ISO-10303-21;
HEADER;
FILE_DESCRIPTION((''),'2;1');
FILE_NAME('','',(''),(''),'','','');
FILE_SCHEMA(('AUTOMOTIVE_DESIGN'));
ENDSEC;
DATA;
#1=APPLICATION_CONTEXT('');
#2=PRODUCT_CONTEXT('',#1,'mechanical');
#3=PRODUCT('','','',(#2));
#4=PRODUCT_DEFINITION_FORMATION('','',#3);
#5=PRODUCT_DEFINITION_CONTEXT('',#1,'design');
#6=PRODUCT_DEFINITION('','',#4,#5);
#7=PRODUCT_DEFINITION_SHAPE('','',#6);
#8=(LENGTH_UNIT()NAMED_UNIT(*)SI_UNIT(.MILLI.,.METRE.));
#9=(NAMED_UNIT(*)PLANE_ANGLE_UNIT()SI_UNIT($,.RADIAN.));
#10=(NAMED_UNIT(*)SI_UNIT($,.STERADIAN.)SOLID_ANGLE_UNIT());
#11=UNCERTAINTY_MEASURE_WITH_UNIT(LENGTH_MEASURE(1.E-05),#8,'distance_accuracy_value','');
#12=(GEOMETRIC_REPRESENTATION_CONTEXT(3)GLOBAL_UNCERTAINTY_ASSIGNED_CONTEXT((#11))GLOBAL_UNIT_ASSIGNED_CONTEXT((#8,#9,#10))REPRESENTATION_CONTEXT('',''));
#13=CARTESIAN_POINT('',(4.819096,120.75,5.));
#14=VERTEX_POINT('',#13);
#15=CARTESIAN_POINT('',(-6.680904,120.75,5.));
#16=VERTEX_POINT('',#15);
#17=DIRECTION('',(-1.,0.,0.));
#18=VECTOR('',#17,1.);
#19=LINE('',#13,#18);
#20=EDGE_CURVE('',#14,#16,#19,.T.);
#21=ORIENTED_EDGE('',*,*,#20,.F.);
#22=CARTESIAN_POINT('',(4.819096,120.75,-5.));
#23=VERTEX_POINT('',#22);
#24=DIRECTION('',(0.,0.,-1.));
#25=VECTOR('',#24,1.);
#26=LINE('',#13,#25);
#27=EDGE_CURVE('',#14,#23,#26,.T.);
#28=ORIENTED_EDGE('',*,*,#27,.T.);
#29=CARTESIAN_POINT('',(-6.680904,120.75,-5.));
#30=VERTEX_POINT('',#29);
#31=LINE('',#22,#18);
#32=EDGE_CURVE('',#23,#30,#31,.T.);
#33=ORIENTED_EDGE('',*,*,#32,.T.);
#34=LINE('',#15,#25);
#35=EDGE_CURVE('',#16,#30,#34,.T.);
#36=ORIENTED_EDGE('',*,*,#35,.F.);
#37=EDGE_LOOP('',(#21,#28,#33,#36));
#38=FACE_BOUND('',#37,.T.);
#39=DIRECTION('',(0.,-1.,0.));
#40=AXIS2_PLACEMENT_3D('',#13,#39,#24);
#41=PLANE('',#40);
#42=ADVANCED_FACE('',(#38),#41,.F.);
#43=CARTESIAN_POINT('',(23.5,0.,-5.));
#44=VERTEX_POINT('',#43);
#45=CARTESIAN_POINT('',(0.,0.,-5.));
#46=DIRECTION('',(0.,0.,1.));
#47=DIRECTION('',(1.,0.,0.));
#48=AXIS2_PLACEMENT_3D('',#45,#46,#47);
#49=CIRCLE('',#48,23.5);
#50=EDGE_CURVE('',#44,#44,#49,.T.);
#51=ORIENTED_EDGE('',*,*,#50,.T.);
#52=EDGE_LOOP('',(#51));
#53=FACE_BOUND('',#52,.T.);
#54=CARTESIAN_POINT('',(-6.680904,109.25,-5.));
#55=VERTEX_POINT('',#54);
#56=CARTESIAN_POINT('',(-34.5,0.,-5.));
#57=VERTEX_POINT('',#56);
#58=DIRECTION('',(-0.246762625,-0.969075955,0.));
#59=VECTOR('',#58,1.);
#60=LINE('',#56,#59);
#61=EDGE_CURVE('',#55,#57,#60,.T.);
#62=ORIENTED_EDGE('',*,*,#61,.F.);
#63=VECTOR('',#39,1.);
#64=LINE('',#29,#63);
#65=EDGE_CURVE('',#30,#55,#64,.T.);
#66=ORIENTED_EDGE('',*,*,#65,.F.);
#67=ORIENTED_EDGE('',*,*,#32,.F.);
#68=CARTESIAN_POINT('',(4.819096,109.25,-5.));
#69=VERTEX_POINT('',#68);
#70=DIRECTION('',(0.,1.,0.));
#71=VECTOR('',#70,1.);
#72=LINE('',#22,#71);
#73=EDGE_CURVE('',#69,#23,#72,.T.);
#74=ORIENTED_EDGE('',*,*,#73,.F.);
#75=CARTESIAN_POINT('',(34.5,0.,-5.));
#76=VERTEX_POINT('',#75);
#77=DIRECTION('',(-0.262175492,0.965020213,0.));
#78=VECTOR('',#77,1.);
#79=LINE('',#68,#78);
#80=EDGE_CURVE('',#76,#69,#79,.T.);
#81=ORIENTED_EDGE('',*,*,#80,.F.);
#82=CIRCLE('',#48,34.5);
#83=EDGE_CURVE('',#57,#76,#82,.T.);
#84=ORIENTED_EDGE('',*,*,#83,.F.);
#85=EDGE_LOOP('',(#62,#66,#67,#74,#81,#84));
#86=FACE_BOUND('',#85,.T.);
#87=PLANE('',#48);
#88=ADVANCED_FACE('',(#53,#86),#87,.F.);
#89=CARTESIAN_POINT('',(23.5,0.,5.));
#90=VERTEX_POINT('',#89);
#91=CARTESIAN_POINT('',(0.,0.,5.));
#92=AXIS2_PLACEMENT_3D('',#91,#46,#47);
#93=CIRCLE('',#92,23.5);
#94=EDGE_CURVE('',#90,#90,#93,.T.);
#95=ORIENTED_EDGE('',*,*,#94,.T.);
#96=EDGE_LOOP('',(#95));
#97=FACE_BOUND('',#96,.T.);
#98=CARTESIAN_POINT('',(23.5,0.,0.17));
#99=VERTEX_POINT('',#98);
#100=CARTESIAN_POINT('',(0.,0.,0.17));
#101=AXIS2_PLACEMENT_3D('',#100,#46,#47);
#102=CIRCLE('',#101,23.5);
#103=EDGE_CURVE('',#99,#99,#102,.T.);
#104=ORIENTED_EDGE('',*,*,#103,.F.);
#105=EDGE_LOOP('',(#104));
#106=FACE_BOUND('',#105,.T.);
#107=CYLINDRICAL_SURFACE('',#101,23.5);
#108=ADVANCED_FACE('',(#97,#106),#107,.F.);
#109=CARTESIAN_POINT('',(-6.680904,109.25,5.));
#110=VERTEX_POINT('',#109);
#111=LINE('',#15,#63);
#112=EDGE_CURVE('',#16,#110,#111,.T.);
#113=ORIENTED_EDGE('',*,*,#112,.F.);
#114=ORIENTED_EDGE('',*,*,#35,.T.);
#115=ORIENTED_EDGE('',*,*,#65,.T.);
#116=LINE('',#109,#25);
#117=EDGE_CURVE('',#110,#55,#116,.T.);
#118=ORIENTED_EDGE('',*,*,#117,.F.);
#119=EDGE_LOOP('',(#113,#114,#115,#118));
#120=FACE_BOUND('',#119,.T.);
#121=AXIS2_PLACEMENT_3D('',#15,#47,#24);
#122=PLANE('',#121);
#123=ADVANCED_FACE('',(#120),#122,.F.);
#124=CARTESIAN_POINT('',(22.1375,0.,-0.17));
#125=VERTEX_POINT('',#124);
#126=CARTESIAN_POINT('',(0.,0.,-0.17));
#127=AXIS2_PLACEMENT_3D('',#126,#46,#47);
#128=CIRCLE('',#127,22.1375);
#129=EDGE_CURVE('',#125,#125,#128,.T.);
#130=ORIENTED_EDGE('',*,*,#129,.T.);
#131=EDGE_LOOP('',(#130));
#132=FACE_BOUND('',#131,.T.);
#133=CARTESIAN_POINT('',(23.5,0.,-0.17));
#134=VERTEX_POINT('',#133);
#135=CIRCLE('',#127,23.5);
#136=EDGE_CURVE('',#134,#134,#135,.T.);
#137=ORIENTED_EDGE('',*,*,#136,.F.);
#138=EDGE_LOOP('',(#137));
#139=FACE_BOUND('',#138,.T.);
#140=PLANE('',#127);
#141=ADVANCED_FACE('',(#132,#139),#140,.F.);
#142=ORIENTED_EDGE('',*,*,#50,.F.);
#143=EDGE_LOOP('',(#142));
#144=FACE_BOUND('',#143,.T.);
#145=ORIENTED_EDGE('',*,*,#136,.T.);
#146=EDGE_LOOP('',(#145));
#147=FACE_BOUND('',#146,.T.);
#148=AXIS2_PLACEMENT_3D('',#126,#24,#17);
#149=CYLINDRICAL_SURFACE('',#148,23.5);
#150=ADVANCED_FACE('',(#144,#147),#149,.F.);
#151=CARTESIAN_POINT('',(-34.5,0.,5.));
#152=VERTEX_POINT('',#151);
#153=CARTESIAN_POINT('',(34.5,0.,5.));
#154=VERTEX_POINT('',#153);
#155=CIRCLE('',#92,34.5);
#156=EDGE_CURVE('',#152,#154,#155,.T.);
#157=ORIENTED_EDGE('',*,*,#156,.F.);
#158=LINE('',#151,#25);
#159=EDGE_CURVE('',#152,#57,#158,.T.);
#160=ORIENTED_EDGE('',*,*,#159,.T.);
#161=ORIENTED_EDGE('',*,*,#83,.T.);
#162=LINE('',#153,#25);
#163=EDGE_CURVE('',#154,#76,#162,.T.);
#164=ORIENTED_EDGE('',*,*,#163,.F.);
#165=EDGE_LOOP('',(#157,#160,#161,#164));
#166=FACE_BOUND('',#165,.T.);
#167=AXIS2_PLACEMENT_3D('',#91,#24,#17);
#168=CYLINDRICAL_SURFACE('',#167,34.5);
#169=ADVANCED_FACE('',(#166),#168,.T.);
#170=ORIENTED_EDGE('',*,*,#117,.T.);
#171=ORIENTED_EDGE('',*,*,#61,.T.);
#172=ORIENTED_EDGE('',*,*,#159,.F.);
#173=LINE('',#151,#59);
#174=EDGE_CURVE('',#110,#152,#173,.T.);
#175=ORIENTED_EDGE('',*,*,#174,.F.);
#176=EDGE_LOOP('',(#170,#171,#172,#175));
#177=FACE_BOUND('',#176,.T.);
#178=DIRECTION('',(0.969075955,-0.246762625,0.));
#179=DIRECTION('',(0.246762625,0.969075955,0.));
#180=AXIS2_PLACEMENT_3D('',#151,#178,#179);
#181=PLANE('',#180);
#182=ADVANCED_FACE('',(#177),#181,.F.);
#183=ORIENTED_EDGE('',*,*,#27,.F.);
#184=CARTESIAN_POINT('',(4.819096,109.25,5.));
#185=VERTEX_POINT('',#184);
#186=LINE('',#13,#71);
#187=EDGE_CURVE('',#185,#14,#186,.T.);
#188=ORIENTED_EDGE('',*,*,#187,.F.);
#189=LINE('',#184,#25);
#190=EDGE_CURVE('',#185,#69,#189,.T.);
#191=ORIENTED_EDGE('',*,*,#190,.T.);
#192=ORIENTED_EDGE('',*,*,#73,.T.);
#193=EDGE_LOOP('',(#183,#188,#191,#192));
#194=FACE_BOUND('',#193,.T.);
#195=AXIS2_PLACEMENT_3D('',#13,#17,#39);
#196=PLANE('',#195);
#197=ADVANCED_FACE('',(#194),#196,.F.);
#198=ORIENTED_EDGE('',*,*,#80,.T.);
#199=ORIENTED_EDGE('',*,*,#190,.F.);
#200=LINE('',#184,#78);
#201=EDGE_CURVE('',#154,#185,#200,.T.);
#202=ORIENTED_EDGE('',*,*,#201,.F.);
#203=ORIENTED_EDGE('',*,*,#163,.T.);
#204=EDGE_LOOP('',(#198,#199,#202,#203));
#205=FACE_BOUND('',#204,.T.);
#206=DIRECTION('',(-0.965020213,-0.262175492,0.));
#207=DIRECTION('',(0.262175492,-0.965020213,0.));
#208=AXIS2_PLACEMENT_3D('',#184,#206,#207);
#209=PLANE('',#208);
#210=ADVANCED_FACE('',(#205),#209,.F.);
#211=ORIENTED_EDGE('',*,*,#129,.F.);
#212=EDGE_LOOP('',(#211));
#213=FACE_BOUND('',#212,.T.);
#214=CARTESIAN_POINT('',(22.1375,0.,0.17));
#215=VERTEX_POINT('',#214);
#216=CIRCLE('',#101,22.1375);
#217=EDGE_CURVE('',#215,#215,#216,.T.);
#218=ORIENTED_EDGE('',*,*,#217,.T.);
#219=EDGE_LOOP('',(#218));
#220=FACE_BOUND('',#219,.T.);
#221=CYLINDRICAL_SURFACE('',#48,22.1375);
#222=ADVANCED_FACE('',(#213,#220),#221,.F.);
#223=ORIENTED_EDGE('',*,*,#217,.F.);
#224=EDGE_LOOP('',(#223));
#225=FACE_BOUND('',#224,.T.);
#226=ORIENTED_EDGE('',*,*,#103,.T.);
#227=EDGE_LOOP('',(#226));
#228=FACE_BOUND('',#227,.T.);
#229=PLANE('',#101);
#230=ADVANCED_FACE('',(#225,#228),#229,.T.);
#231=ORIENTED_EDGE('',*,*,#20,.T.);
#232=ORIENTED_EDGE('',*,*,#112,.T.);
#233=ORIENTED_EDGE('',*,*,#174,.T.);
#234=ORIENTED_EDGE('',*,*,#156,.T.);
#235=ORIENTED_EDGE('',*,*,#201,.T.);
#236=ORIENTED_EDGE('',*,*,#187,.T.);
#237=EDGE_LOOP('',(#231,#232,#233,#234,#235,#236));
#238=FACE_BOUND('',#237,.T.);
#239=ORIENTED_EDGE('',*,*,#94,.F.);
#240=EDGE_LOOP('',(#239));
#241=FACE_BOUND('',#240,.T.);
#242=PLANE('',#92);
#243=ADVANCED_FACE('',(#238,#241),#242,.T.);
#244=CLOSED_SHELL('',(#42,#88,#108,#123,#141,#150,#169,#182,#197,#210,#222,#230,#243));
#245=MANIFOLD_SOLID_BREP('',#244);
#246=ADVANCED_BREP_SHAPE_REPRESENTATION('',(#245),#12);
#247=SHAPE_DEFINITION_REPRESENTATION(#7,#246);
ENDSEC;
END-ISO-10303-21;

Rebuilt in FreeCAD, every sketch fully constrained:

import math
import FreeCAD as App
import Part
import Sketcher

doc = App.newDocument("Part")
params = doc.addObject("Spreadsheet::Sheet", "Params")
for row, (alias, value) in enumerate([
    ("sketch1_radius", "34.5 mm"),
    ("sketch1_width", "11.5 mm"),
    ("pad1_length", "10 mm"),
    ("sketch2_diameter", "47 mm"),
    ("pocket1_length", "4.83 mm"),
    ("sketch3_diameter", "47 mm"),
    ("pocket2_length", "4.83 mm"),
], start=1):
    params.set(f"A{row}", alias)
    params.set(f"B{row}", "=" + value)
    params.setAlias(f"B{row}", alias)

body = doc.addObject("PartDesign::Body", "Body")

# Sketch on XY plane
sketch1 = doc.addObject("Sketcher::SketchObject", "Sketch")
body.addObject(sketch1)
sketch1.AttachmentSupport = (doc.XY_Plane, [""])
sketch1.MapMode = "FlatFace"
sketch1.addGeometry([
    Part.LineSegment(App.Vector(5, 121, 0), App.Vector(-7, 121, 0)),  # 0
    Part.LineSegment(App.Vector(-7, 121, 0), App.Vector(-7, 109, 0)),  # 1
    Part.LineSegment(App.Vector(-7, 109, 0), App.Vector(-34, 0, 0)),  # 2
    Part.ArcOfCircle(Part.Circle(App.Vector(0, 0, 0), App.Vector(0, 0, 1), 34), math.radians(180), math.radians(360)),  # 3
    Part.LineSegment(App.Vector(34, 0, 0), App.Vector(5, 109, 0)),  # 4
    Part.LineSegment(App.Vector(5, 109, 0), App.Vector(5, 121, 0)),  # 5
], False)
sketch1.addConstraint([
    Sketcher.Constraint("Coincident", 0, 2, 1, 1),
    Sketcher.Constraint("Coincident", 1, 2, 2, 1),
    Sketcher.Constraint("Coincident", 2, 2, 3, 1),
    Sketcher.Constraint("Coincident", 3, 2, 4, 1),
    Sketcher.Constraint("Coincident", 4, 2, 5, 1),
    Sketcher.Constraint("Coincident", 5, 2, 0, 1),
    Sketcher.Constraint("Horizontal", 0),
    Sketcher.Constraint("Vertical", 1),
    Sketcher.Constraint("Vertical", 5),
    Sketcher.Constraint("Coincident", 3, 3, -1, 1),
    Sketcher.Constraint("PointOnObject", 2, 2, -1),
    Sketcher.Constraint("PointOnObject", 3, 2, -1),
    Sketcher.Constraint("Horizontal", 1, 2, 4, 2),
    Sketcher.Constraint("Equal", 0, 1),
    Sketcher.Constraint("Radius", 3, 34.5),
    Sketcher.Constraint("DistanceX", 0, 2, 0, 1, 11.5),
    Sketcher.Constraint("DistanceY", -1, 1, 0, 2, 120.75),
    Sketcher.Constraint("Distance", 2, 112.736261),
])
sketch1.setExpression("Constraints[14]", "Params.sketch1_radius")
sketch1.setExpression("Constraints[15]", "Params.sketch1_width")
pad1 = doc.addObject("PartDesign::Pad", "Pad")
body.addObject(pad1)
pad1.Profile = sketch1
pad1.setExpression("Length", "Params.pad1_length")
pad1.Midplane = True

# Sketch on XY plane
sketch2 = doc.addObject("Sketcher::SketchObject", "Sketch001")
body.addObject(sketch2)
sketch2.AttachmentSupport = (doc.XY_Plane, [""])
sketch2.MapMode = "FlatFace"
sketch2.AttachmentOffset = App.Placement(App.Vector(0, 0, 5), App.Rotation())
sketch2.addGeometry(Part.Circle(App.Vector(0, 0, 0), App.Vector(0, 0, 1), 24), False)
sketch2.addConstraint([
    Sketcher.Constraint("Coincident", 0, 3, -1, 1),
    Sketcher.Constraint("Diameter", 0, 47.0),
])
sketch2.setExpression("Constraints[1]", "Params.sketch2_diameter")
pocket1 = doc.addObject("PartDesign::Pocket", "Pocket")
body.addObject(pocket1)
pocket1.Profile = sketch2
pocket1.setExpression("Length", "Params.pocket1_length")

# Sketch on XY plane
sketch3 = doc.addObject("Sketcher::SketchObject", "Sketch002")
body.addObject(sketch3)
sketch3.AttachmentSupport = (doc.XY_Plane, [""])
sketch3.MapMode = "FlatFace"
sketch3.AttachmentOffset = App.Placement(App.Vector(0, 0, -5), App.Rotation())
sketch3.addGeometry(Part.Circle(App.Vector(0, 0, 0), App.Vector(0, 0, 1), 24), False)
sketch3.addConstraint([
    Sketcher.Constraint("Coincident", 0, 3, -1, 1),
    Sketcher.Constraint("Diameter", 0, 47.0),
])
sketch3.setExpression("Constraints[1]", "Params.sketch3_diameter")
pocket2 = doc.addObject("PartDesign::Pocket", "Pocket001")
body.addObject(pocket2)
pocket2.Profile = sketch3
pocket2.setExpression("Length", "Params.pocket2_length")
pocket2.Reversed = True

# Sketch on XY plane
sketch4 = doc.addObject("Sketcher::SketchObject", "Sketch003")
body.addObject(sketch4)
sketch4.AttachmentSupport = (doc.XY_Plane, [""])
sketch4.MapMode = "FlatFace"
sketch4.addGeometry(Part.Circle(App.Vector(0, 0, 0), App.Vector(0, 0, 1), 22), False)
sketch4.addConstraint([
    Sketcher.Constraint("Coincident", 0, 3, -1, 1),
    Sketcher.Constraint("Diameter", 0, 44.275),
])
pocket3 = doc.addObject("PartDesign::Pocket", "Pocket002")
body.addObject(pocket3)
pocket3.Profile = sketch4
pocket3.Type = "ThroughAll"
pocket3.Midplane = True

doc.recompute()
